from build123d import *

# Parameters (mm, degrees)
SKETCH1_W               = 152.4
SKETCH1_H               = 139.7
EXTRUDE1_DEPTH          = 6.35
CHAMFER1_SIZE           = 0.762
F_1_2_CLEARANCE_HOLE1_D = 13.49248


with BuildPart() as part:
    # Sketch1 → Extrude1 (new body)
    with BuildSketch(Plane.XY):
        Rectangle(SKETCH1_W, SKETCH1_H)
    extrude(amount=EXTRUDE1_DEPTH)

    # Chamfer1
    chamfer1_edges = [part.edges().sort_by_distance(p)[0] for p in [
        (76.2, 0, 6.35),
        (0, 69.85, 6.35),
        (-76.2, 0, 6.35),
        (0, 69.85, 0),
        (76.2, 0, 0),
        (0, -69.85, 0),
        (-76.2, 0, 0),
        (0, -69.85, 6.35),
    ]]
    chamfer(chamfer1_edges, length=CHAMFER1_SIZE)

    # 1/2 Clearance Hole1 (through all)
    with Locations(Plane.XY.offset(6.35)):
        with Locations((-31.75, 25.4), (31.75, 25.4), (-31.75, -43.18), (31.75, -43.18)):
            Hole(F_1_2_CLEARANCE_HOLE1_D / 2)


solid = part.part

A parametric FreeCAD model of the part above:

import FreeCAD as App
import Part
import Sketcher
from FreeCAD import Vector
Q = App.Units.Quantity


def edges_at(feature, points):
    """Names of the edges that pass closest to the given points."""
    edges = feature.Shape.Edges
    near = lambda p: min(range(len(edges)), key=lambda i: edges[i].distToShape(Part.Vertex(*p))[0])
    return sorted({f"Edge{near(p) + 1}" for p in points})


def add_polygon(sketch, points):
    """Adds a closed chain of lines whose ends are joined by coincident constraints."""
    first, n = sketch.GeometryCount, len(points)
    for a, b in zip(points, points[1:] + points[:1]):
        sketch.addGeometry(Part.LineSegment(App.Vector(*a, 0), App.Vector(*b, 0)), False)
    for i in range(n):
        sketch.addConstraint(Sketcher.Constraint("Coincident", first + i, 2, first + (i + 1) % n, 1))

doc = App.newDocument("Part")
params = doc.addObject("Spreadsheet::Sheet", "Params")
for row, (alias, value) in enumerate([
    ("sketch1_width", "6 in"),
    ("sketch1_height", "5.5 in"),
    ("pad1_length", "0.25 in"),
    ("chamfer_size", "0.03 in"),
    ("hole_diameter", "0.5312 in"),
], start=1):
    params.set(f"A{row}", alias)
    params.set(f"B{row}", "=" + value)
    params.setAlias(f"B{row}", alias)

body = doc.addObject("PartDesign::Body", "Body")

# Sketch on XY plane
sketch1 = body.newObject("Sketcher::SketchObject", "Sketch")
sketch1.AttachmentSupport = (doc.getObject("XY_Plane"), [""])
sketch1.MapMode = "FlatFace"
add_polygon(sketch1, [(-76.2, 69.85), (-76.2, -69.85), (76.2, -69.85), (76.2, 69.85)])  # lines 0-3
sketch1.addConstraint(Sketcher.Constraint("Vertical", 0))
sketch1.addConstraint(Sketcher.Constraint("Horizontal", 1))
sketch1.addConstraint(Sketcher.Constraint("Vertical", 2))
sketch1.addConstraint(Sketcher.Constraint("Horizontal", 3))
sketch1.addConstraint(Sketcher.Constraint("Symmetric", 0, 2, 2, 2, -1, 1))
sketch1.addConstraint(Sketcher.Constraint("DistanceX", 1, 1, 1, 2, Q("6 in")))
sketch1.addConstraint(Sketcher.Constraint("DistanceY", 0, 2, 0, 1, Q("5.5 in")))
sketch1.setExpression("Constraints[9]", "Params.sketch1_width")
sketch1.setExpression("Constraints[10]", "Params.sketch1_height")
pad1 = body.newObject("PartDesign::Pad", "Pad")
pad1.Profile = sketch1
pad1.setExpression("Length", "Params.pad1_length")
doc.recompute()

chamfer = body.newObject("PartDesign::Chamfer", "Chamfer")
chamfer.Base = (pad1, edges_at(pad1, [
    (76.2, 0, 6.35),
    (0, 69.85, 6.35),
    (-76.2, 0, 6.35),
    (0, 69.85, 0),
    (76.2, 0, 0),
    (0, -69.85, 0),
    (-76.2, 0, 0),
    (0, -69.85, 6.35),
]))
chamfer.setExpression("Size", "Params.chamfer_size")

# Sketch on XY plane
sketch2 = body.newObject("Sketcher::SketchObject", "Sketch001")
sketch2.AttachmentSupport = (doc.getObject("XY_Plane"), [""])
sketch2.MapMode = "FlatFace"
sketch2.AttachmentOffset = App.Placement(Vector(0, 0, 0.25 * 25.4), App.Rotation())
sketch2.addGeometry(Part.Circle(Vector(-31.75, 25.4, 0), Vector(0, 0, 1), 6.74624), False)
sketch2.addGeometry(Part.Circle(Vector(31.75, 25.4, 0), Vector(0, 0, 1), 6.74624), False)
sketch2.addGeometry(Part.Circle(Vector(-31.75, -43.18, 0), Vector(0, 0, 1), 6.74624), False)
sketch2.addGeometry(Part.Circle(Vector(31.75, -43.18, 0), Vector(0, 0, 1), 6.74624), False)
sketch2.addConstraint(Sketcher.Constraint("Equal", 0, 1))
sketch2.addConstraint(Sketcher.Constraint("Equal", 1, 2))
sketch2.addConstraint(Sketcher.Constraint("Equal", 2, 3))
sketch2.addConstraint(Sketcher.Constraint("Symmetric", 0, 3, 1, 3, -2))
sketch2.addConstraint(Sketcher.Constraint("Symmetric", 2, 3, 3, 3, -2))
sketch2.addConstraint(Sketcher.Constraint("Vertical", 0, 3, 2, 3))
sketch2.addConstraint(Sketcher.Constraint("DistanceY", -1, 1, 0, 3, Q("1 in")))
sketch2.addConstraint(Sketcher.Constraint("Diameter", 0, Q("0.5312 in")))
sketch2.addConstraint(Sketcher.Constraint("DistanceY", 2, 3, -1, 1, Q("1.7 in")))
sketch2.addConstraint(Sketcher.Constraint("DistanceX", 0, 3, 1, 3, Q("2.5 in")))
doc.recompute()
hole = body.newObject("PartDesign::Hole", "Hole")
hole.Profile = sketch2
hole.ThreadType = "None"
hole.setExpression("Diameter", "Params.hole_diameter")
hole.DepthType = "ThroughAll"

doc.recompute()
